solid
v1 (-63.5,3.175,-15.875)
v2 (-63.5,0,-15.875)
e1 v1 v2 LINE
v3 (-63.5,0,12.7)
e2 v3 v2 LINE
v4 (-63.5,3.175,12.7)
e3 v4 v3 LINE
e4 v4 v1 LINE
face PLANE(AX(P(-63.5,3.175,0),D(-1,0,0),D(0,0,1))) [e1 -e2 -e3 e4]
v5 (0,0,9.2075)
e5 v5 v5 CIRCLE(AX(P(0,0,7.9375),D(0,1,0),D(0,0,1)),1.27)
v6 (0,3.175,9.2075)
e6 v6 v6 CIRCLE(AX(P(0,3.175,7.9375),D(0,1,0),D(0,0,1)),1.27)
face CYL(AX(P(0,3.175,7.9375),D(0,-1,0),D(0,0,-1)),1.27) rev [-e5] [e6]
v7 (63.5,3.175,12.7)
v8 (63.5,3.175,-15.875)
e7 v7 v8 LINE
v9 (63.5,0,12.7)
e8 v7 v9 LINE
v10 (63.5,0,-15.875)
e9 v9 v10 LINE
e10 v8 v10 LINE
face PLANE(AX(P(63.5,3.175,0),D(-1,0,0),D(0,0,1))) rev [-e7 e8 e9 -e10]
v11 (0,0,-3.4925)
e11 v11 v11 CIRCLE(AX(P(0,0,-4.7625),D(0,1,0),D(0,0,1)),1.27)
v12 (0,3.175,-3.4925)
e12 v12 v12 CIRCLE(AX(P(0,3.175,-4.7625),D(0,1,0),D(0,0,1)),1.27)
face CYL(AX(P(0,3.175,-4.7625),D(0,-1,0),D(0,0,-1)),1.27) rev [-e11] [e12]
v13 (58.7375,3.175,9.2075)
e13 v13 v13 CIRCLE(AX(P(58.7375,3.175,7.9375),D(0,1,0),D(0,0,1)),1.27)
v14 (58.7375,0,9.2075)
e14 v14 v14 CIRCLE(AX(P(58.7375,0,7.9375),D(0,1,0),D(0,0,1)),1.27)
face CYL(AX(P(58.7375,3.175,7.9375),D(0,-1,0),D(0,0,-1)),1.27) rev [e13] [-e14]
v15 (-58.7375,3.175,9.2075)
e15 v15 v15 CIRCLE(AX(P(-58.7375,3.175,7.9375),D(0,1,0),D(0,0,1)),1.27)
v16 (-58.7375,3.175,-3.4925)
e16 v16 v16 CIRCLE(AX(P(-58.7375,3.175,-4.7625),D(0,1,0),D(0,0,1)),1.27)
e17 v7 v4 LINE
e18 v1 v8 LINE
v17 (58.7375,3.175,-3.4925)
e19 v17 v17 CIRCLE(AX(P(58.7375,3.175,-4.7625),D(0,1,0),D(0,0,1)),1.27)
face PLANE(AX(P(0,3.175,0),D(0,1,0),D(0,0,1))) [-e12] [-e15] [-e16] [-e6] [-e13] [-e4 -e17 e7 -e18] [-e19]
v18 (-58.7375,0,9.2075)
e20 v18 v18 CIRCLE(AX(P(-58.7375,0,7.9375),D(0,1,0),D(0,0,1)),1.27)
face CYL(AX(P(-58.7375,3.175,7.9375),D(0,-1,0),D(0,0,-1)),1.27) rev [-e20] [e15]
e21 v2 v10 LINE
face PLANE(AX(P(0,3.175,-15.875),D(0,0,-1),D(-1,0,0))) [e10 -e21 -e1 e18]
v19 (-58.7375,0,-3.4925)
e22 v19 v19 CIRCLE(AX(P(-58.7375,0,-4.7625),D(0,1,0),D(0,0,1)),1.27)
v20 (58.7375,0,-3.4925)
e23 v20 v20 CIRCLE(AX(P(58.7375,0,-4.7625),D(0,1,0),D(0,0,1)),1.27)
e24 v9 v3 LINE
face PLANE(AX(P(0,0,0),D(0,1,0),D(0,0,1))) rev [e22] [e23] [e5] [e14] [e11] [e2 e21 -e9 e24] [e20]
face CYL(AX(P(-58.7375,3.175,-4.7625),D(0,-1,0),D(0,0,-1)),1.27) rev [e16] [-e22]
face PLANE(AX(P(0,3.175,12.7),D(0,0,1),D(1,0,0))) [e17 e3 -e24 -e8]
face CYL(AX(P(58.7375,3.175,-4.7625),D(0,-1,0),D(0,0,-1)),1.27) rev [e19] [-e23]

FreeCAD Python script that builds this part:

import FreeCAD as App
import Part
import Sketcher
Q = App.Units.Quantity


def add_polygon(sketch, points):
    """Adds a closed chain of lines whose ends are joined by coincident constraints."""
    first, n = sketch.GeometryCount, len(points)
    for a, b in zip(points, points[1:] + points[:1]):
        sketch.addGeometry(Part.LineSegment(App.Vector(*a, 0), App.Vector(*b, 0)), False)
    for i in range(n):
        sketch.addConstraint(Sketcher.Constraint("Coincident", first + i, 2, first + (i + 1) % n, 1))

doc = App.newDocument("Part")
params = doc.addObject("Spreadsheet::Sheet", "Params")
for row, (alias, value) in enumerate([
    ("sketch1_diameter", "0.1 in"),
    ("sketch1_width", "5 in"),
    ("sketch1_height", "1.125 in"),
    ("pad1_length", "0.125 in"),
], start=1):
    params.set(f"A{row}", alias)
    params.set(f"B{row}", "=" + value)
    params.setAlias(f"B{row}", alias)

body = doc.addObject("PartDesign::Body", "Body")

# Sketch on XZ plane
sketch1 = body.newObject("Sketcher::SketchObject", "Sketch")
sketch1.AttachmentSupport = (doc.getObject("XZ_Plane"), [""])
sketch1.MapMode = "FlatFace"
add_polygon(sketch1, [(-63.5, 12.7), (63.5, 12.7), (63.5, -15.875), (-63.5, -15.875)])  # lines 0-3
sketch1.addGeometry(Part.Circle(App.Vector(-58.7375, 7.9375, 0), App.Vector(0, 0, 1), 1.27), False)  # 4
sketch1.addGeometry(Part.Circle(App.Vector(0, 7.9375, 0), App.Vector(0, 0, 1), 1.27), False)  # 5
sketch1.addGeometry(Part.Circle(App.Vector(58.7375, 7.9375, 0), App.Vector(0, 0, 1), 1.27), False)  # 6
sketch1.addGeometry(Part.Circle(App.Vector(-58.7375, -4.7625, 0), App.Vector(0, 0, 1), 1.27), False)  # 7
sketch1.addGeometry(Part.Circle(App.Vector(0, -4.7625, 0), App.Vector(0, 0, 1), 1.27), False)  # 8
sketch1.addGeometry(Part.Circle(App.Vector(58.7375, -4.7625, 0), App.Vector(0, 0, 1), 1.27), False)  # 9
sketch1.addConstraint([
    Sketcher.Constraint("Horizontal", 0),
    Sketcher.Constraint("Vertical", 1),
    Sketcher.Constraint("Horizontal", 2),
    Sketcher.Constraint("Vertical", 3),
    Sketcher.Constraint("Equal", 4, 5),
    Sketcher.Constraint("Equal", 5, 6),
    Sketcher.Constraint("Equal", 6, 7),
    Sketcher.Constraint("Equal", 7, 8),
    Sketcher.Constraint("Equal", 8, 9),
    Sketcher.Constraint("Symmetric", 4, 3, 6, 3, -2),
    Sketcher.Constraint("Symmetric", 7, 3, 9, 3, -2),
    Sketcher.Constraint("PointOnObject", 5, 3, -2),
    Sketcher.Constraint("PointOnObject", 8, 3, -2),
    Sketcher.Constraint("Horizontal", 4, 3, 5, 3),
    Sketcher.Constraint("Horizontal", 7, 3, 8, 3),
    Sketcher.Constraint("Vertical", 4, 3, 7, 3),
    Sketcher.Constraint("Diameter", 4, Q("0.1 in")),
    Sketcher.Constraint("DistanceX", 0, 1, 0, 2, Q("5 in")),
    Sketcher.Constraint("DistanceX", -1, 1, 0, 2, Q("2.5 in")),
    Sketcher.Constraint("DistanceY", -1, 1, 0, 2, Q("0.5 in")),
    Sketcher.Constraint("DistanceY", 7, 3, 4, 3, Q("0.5 in")),
    Sketcher.Constraint("DistanceY", 1, 2, 1, 1, Q("1.125 in")),
    Sketcher.Constraint("DistanceX", 4, 3, -1, 1, Q("2.3125 in")),
    Sketcher.Constraint("DistanceY", -1, 1, 4, 3, Q("0.3125 in")),
])
sketch1.setExpression("Constraints[20]", "Params.sketch1_diameter")
sketch1.setExpression("Constraints[21]", "Params.sketch1_width")
sketch1.setExpression("Constraints[25]", "Params.sketch1_height")
pad1 = body.newObject("PartDesign::Pad", "Pad")
pad1.Profile = sketch1
pad1.setExpression("Length", "Params.pad1_length")
pad1.Reversed = True

doc.recompute()
